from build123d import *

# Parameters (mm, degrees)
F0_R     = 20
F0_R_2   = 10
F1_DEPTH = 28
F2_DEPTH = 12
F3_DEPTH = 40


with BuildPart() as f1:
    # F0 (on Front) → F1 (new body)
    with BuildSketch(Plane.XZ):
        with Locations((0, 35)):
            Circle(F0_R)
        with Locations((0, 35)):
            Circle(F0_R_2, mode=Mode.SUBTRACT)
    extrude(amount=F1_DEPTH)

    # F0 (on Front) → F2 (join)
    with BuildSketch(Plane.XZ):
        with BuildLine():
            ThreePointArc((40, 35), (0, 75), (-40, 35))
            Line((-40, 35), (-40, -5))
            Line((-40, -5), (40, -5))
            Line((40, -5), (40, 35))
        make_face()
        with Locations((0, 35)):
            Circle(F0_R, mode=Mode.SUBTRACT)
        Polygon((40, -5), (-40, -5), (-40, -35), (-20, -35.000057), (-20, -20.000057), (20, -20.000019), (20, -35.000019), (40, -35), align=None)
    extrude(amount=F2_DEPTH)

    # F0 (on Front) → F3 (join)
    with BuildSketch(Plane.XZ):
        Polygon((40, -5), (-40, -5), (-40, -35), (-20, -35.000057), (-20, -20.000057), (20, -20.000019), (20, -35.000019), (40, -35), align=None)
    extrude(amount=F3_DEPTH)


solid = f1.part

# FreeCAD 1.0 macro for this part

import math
import FreeCAD as App
import Part
import Sketcher

V = App.Vector
Q = App.Units.Quantity

doc = App.newDocument("Part")
params = doc.addObject("Spreadsheet::Sheet", "Params")
for row, (alias, value) in enumerate([
    ("sketch1_diameter", "40 mm"),
    ("sketch1_diameter2", "20 mm"),
    ("pad1_length", "28 mm"),
    ("sketch2_diameter", "40 mm"),
    ("sketch2_radius", "40 mm"),
    ("sketch2_height", "70 mm"),
    ("sketch2_height2", "15 mm"),
    ("sketch2_length", "20 mm"),
    ("pad2_length", "12 mm"),
    ("sketch3_width", "80 mm"),
    ("sketch3_height", "30 mm"),
    ("sketch3_height2", "15 mm"),
    ("sketch3_length", "20 mm"),
    ("pad3_length", "40 mm"),
], start=1):
    params.set(f"A{row}", alias)
    params.set(f"B{row}", "=" + value)
    params.setAlias(f"B{row}", alias)

body = doc.addObject("PartDesign::Body", "Body")

sketch1 = doc.addObject("Sketcher::SketchObject", "Sketch")
body.addObject(sketch1)
sketch1.AttachmentSupport = (doc.XZ_Plane, [""])
sketch1.MapMode = "FlatFace"
sketch1.addGeometry([
    Part.Circle(V(0, 35, 0), V(0, 0, 1), 20),
    Part.Circle(V(0, 35, 0), V(0, 0, 1), 10),
], False)
sketch1.addConstraint([
    Sketcher.Constraint("Coincident", 1, 3, 0, 3),
    Sketcher.Constraint("PointOnObject", 0, 3, -2),
    Sketcher.Constraint("Diameter", 0, Q("40 mm")),
    Sketcher.Constraint("Diameter", 1, Q("20 mm")),
    Sketcher.Constraint("DistanceY", -1, 1, 0, 3, Q("35 mm")),
])
sketch1.setExpression("Constraints[2]", "Params.sketch1_diameter")
sketch1.setExpression("Constraints[3]", "Params.sketch1_diameter2")
pad1 = doc.addObject("PartDesign::Pad", "Pad")
body.addObject(pad1)
pad1.Profile = sketch1
pad1.setExpression("Length", "Params.pad1_length")

sketch2 = doc.addObject("Sketcher::SketchObject", "Sketch001")
body.addObject(sketch2)
sketch2.AttachmentSupport = (doc.XZ_Plane, [""])
sketch2.MapMode = "FlatFace"
sketch2.addGeometry([
    Part.ArcOfCircle(Part.Circle(V(0, 35, 0), V(0, 0, 1), 40), math.radians(0), math.radians(180)),
    Part.LineSegment(V(-40, 35, 0), V(-40, -35, 0)),
    Part.LineSegment(V(-40, -35, 0), V(-20, -35.000057, 0)),
    Part.LineSegment(V(-20, -35.000057, 0), V(-20, -20.000057, 0)),
    Part.LineSegment(V(-20, -20.000057, 0), V(20, -20.000019, 0)),
    Part.LineSegment(V(20, -20.000019, 0), V(20, -35.000019, 0)),
    Part.LineSegment(V(20, -35.000019, 0), V(40, -35, 0)),
    Part.LineSegment(V(40, -35, 0), V(40, 35, 0)),
    Part.Circle(V(0, 35, 0), V(0, 0, 1), 20),
], False)
sketch2.addConstraint([
    Sketcher.Constraint("Tangent", 0, 2, 1, 1),
    Sketcher.Constraint("Coincident", 1, 2, 2, 1),
    Sketcher.Constraint("Coincident", 2, 2, 3, 1),
    Sketcher.Constraint("Coincident", 3, 2, 4, 1),
    Sketcher.Constraint("Coincident", 4, 2, 5, 1),
    Sketcher.Constraint("Coincident", 5, 2, 6, 1),
    Sketcher.Constraint("Coincident", 6, 2, 7, 1),
    Sketcher.Constraint("Tangent", 7, 2, 0, 1),
    Sketcher.Constraint("Vertical", 1),
    Sketcher.Constraint("Vertical", 3),
    Sketcher.Constraint("Vertical", 5),
    Sketcher.Constraint("Vertical", 7),
    Sketcher.Constraint("Coincident", 8, 3, 0, 3),
    Sketcher.Constraint("Symmetric", 0, 2, 6, 2, -1, 1),
    Sketcher.Constraint("Parallel", 4, 6),
    Sketcher.Constraint("Horizontal", 1, 2, 6, 2),
    Sketcher.Constraint("Equal", 3, 5),
    Sketcher.Constraint("Equal", 2, 6),
    Sketcher.Constraint("Diameter", 8, Q("40 mm")),
    Sketcher.Constraint("Radius", 0, Q("40 mm")),
    Sketcher.Constraint("DistanceY", 1, 2, 1, 1, Q("70 mm")),
    Sketcher.Constraint("DistanceY", 3, 1, 3, 2, Q("15 mm")),
    Sketcher.Constraint("Distance", 2, Q("20 mm")),
    Sketcher.Constraint("DistanceY", 4, 2, -1, 1, Q("20.000019 mm")),
])
sketch2.setExpression("Constraints[18]", "Params.sketch2_diameter")
sketch2.setExpression("Constraints[19]", "Params.sketch2_radius")
sketch2.setExpression("Constraints[20]", "Params.sketch2_height")
sketch2.setExpression("Constraints[21]", "Params.sketch2_height2")
sketch2.setExpression("Constraints[22]", "Params.sketch2_length")
pad2 = doc.addObject("PartDesign::Pad", "Pad001")
body.addObject(pad2)
pad2.Profile = sketch2
pad2.setExpression("Length", "Params.pad2_length")

sketch3 = doc.addObject("Sketcher::SketchObject", "Sketch002")
body.addObject(sketch3)
sketch3.AttachmentSupport = (doc.XZ_Plane, [""])
sketch3.MapMode = "FlatFace"
sketch3.addGeometry([
    Part.LineSegment(V(40, -5, 0), V(-40, -5, 0)),
    Part.LineSegment(V(-40, -5, 0), V(-40, -35, 0)),
    Part.LineSegment(V(-40, -35, 0), V(-20, -35.000057, 0)),
    Part.LineSegment(V(-20, -35.000057, 0), V(-20, -20.000057, 0)),
    Part.LineSegment(V(-20, -20.000057, 0), V(20, -20.000019, 0)),
    Part.LineSegment(V(20, -20.000019, 0), V(20, -35.000019, 0)),
    Part.LineSegment(V(20, -35.000019, 0), V(40, -35, 0)),
    Part.LineSegment(V(40, -35, 0), V(40, -5, 0)),
], False)
sketch3.addConstraint([
    Sketcher.Constraint("Coincident", 0, 2, 1, 1),
    Sketcher.Constraint("Coincident", 1, 2, 2, 1),
    Sketcher.Constraint("Coincident", 2, 2, 3, 1),
    Sketcher.Constraint("Coincident", 3, 2, 4, 1),
    Sketcher.Constraint("Coincident", 4, 2, 5, 1),
    Sketcher.Constraint("Coincident", 5, 2, 6, 1),
    Sketcher.Constraint("Coincident", 6, 2, 7, 1),
    Sketcher.Constraint("Coincident", 7, 2, 0, 1),
    Sketcher.Constraint("Horizontal", 0),
    Sketcher.Constraint("Vertical", 1),
    Sketcher.Constraint("Vertical", 3),
    Sketcher.Constraint("Vertical", 5),
    Sketcher.Constraint("Vertical", 7),
    Sketcher.Constraint("Symmetric", 1, 2, 6, 2, -2),
    Sketcher.Constraint("Parallel", 4, 6),
    Sketcher.Constraint("Equal", 3, 5),
    Sketcher.Constraint("Equal", 2, 6),
    Sketcher.Constraint("DistanceX", 0, 2, 0, 1, Q("80 mm")),
    Sketcher.Constraint("DistanceY", 1, 2, 1, 1, Q("30 mm")),
    Sketcher.Constraint("DistanceY", 3, 1, 3, 2, Q("15 mm")),
    Sketcher.Constraint("Distance", 2, Q("20 mm")),
    Sketcher.Constraint("DistanceY", 0, 2, -1, 1, Q("5 mm")),
    Sketcher.Constraint("DistanceY", 4, 2, -1, 1, Q("20.000019 mm")),
])
sketch3.setExpression("Constraints[17]", "Params.sketch3_width")
sketch3.setExpression("Constraints[18]", "Params.sketch3_height")
sketch3.setExpression("Constraints[19]", "Params.sketch3_height2")
sketch3.setExpression("Constraints[20]", "Params.sketch3_length")
pad3 = doc.addObject("PartDesign::Pad", "Pad002")
body.addObject(pad3)
pad3.Profile = sketch3
pad3.setExpression("Length", "Params.pad3_length")

doc.recompute()
